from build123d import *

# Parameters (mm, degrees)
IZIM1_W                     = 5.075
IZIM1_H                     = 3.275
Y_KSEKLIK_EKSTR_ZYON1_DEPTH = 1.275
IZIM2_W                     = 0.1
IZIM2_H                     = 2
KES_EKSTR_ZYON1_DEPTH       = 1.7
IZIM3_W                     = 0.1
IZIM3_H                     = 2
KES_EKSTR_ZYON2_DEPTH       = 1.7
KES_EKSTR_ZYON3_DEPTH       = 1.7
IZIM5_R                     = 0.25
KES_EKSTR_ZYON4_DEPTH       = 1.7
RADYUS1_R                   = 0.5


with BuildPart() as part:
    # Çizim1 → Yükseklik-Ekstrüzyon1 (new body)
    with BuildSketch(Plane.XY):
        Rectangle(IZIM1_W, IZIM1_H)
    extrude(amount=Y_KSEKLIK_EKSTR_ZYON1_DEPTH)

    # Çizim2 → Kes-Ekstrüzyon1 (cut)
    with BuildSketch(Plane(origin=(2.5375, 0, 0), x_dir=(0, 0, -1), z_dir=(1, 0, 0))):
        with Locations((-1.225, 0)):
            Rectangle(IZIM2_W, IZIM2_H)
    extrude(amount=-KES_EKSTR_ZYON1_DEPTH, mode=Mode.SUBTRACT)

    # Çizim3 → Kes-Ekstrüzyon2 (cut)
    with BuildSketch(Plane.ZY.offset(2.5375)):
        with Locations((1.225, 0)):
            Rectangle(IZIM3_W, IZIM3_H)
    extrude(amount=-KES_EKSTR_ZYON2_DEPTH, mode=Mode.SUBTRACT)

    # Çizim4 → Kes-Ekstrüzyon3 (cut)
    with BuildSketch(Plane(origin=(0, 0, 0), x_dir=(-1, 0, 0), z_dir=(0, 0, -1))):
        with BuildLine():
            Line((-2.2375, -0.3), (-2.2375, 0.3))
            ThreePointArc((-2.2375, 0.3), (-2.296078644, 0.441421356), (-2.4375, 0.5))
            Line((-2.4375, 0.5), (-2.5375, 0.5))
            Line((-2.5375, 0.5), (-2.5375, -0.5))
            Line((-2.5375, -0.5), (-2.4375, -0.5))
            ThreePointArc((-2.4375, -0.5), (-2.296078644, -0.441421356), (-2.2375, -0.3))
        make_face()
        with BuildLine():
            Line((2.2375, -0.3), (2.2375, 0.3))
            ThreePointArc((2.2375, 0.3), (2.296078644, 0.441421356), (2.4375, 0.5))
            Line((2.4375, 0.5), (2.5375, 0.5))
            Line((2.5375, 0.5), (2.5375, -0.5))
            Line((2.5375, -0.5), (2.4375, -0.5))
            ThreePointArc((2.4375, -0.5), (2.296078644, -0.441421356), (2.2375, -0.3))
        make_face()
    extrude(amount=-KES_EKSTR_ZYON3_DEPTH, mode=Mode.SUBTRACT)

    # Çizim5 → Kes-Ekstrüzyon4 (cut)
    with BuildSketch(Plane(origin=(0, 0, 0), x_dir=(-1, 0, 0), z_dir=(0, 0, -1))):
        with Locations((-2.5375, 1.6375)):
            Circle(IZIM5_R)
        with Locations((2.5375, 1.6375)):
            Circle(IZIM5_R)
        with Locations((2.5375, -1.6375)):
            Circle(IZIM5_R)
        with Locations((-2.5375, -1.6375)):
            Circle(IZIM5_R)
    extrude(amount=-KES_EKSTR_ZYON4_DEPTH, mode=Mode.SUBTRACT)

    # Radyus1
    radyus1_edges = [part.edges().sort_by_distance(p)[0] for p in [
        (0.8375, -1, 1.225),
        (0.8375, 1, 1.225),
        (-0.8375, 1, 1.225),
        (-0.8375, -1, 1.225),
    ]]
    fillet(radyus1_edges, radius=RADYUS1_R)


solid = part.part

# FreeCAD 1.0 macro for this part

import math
import FreeCAD as App
import Part
import Sketcher


def edges_at(feature, points):
    """Names of the edges that pass closest to the given points."""
    edges = feature.Shape.Edges
    near = lambda p: min(range(len(edges)), key=lambda i: edges[i].distToShape(Part.Vertex(*p))[0])
    return sorted({f"Edge{near(p) + 1}" for p in points})

doc = App.newDocument("Part")
body = doc.addObject("PartDesign::Body", "Body")

# Sketch on XY plane
sketch1 = body.newObject("Sketcher::SketchObject", "Sketch")
sketch1.AttachmentSupport = (doc.getObject("XY_Plane"), [""])
sketch1.MapMode = "FlatFace"
sketch1.addGeometry(Part.LineSegment(App.Vector(-2.5, 1.6, 0), App.Vector(-2.5, -1.6, 0)), False)
sketch1.addGeometry(Part.LineSegment(App.Vector(-2.5, -1.6, 0), App.Vector(2.5, -1.6, 0)), False)
sketch1.addGeometry(Part.LineSegment(App.Vector(2.5, -1.6, 0), App.Vector(2.5, 1.6, 0)), False)
sketch1.addGeometry(Part.LineSegment(App.Vector(2.5, 1.6, 0), App.Vector(-2.5, 1.6, 0)), False)
sketch1.addConstraint(Sketcher.Constraint("Coincident", 0, 2, 1, 1))
sketch1.addConstraint(Sketcher.Constraint("Coincident", 1, 2, 2, 1))
sketch1.addConstraint(Sketcher.Constraint("Coincident", 2, 2, 3, 1))
sketch1.addConstraint(Sketcher.Constraint("Coincident", 3, 2, 0, 1))
sketch1.addConstraint(Sketcher.Constraint("Vertical", 0))
sketch1.addConstraint(Sketcher.Constraint("Horizontal", 1))
sketch1.addConstraint(Sketcher.Constraint("Vertical", 2))
sketch1.addConstraint(Sketcher.Constraint("Horizontal", 3))
sketch1.addConstraint(Sketcher.Constraint("Symmetric", 0, 2, 2, 2, -1, 1))
sketch1.addConstraint(Sketcher.Constraint("DistanceX", 1, 1, 1, 2, 5.075))
sketch1.addConstraint(Sketcher.Constraint("DistanceY", 0, 2, 0, 1, 3.275))
pad1 = body.newObject("PartDesign::Pad", "Pad")
pad1.Profile = sketch1
pad1.Length = 1.275

# Sketch on YZ plane
sketch2 = body.newObject("Sketcher::SketchObject", "Sketch001")
sketch2.AttachmentSupport = (doc.getObject("YZ_Plane"), [""])
sketch2.MapMode = "FlatFace"
sketch2.AttachmentOffset = App.Placement(App.Vector(0, 0, 2.5375), App.Rotation())
sketch2.addGeometry(Part.LineSegment(App.Vector(1, 1.27, 0), App.Vector(-1, 1.27, 0)), False)
sketch2.addGeometry(Part.LineSegment(App.Vector(-1, 1.27, 0), App.Vector(-1, 1.18, 0)), False)
sketch2.addGeometry(Part.LineSegment(App.Vector(-1, 1.18, 0), App.Vector(1, 1.18, 0)), False)
sketch2.addGeometry(Part.LineSegment(App.Vector(1, 1.18, 0), App.Vector(1, 1.27, 0)), False)
sketch2.addConstraint(Sketcher.Constraint("Coincident", 0, 2, 1, 1))
sketch2.addConstraint(Sketcher.Constraint("Coincident", 1, 2, 2, 1))
sketch2.addConstraint(Sketcher.Constraint("Coincident", 2, 2, 3, 1))
sketch2.addConstraint(Sketcher.Constraint("Coincident", 3, 2, 0, 1))
sketch2.addConstraint(Sketcher.Constraint("Horizontal", 0))
sketch2.addConstraint(Sketcher.Constraint("Vertical", 1))
sketch2.addConstraint(Sketcher.Constraint("Horizontal", 2))
sketch2.addConstraint(Sketcher.Constraint("Vertical", 3))
sketch2.addConstraint(Sketcher.Constraint("DistanceX", 0, 2, 0, 1, 2.0))
sketch2.addConstraint(Sketcher.Constraint("DistanceY", 1, 2, 1, 1, 0.1))
sketch2.addConstraint(Sketcher.Constraint("DistanceX", 0, 2, -1, 1, 1.0))
sketch2.addConstraint(Sketcher.Constraint("DistanceY", -1, 1, 0, 2, 1.275))
pocket1 = body.newObject("PartDesign::Pocket", "Pocket")
pocket1.Profile = sketch2
pocket1.Length = 1.7

# Sketch on YZ plane
sketch3 = body.newObject("Sketcher::SketchObject", "Sketch002")
sketch3.AttachmentSupport = (doc.getObject("YZ_Plane"), [""])
sketch3.MapMode = "FlatFace"
sketch3.AttachmentOffset = App.Placement(App.Vector(0, 0, -2.5375), App.Rotation())
sketch3.addGeometry(Part.LineSegment(App.Vector(1, 1.18, 0), App.Vector(-1, 1.18, 0)), False)
sketch3.addGeometry(Part.LineSegment(App.Vector(-1, 1.18, 0), App.Vector(-1, 1.27, 0)), False)
sketch3.addGeometry(Part.LineSegment(App.Vector(-1, 1.27, 0), App.Vector(1, 1.27, 0)), False)
sketch3.addGeometry(Part.LineSegment(App.Vector(1, 1.27, 0), App.Vector(1, 1.18, 0)), False)
sketch3.addConstraint(Sketcher.Constraint("Coincident", 0, 2, 1, 1))
sketch3.addConstraint(Sketcher.Constraint("Coincident", 1, 2, 2, 1))
sketch3.addConstraint(Sketcher.Constraint("Coincident", 2, 2, 3, 1))
sketch3.addConstraint(Sketcher.Constraint("Coincident", 3, 2, 0, 1))
sketch3.addConstraint(Sketcher.Constraint("Horizontal", 0))
sketch3.addConstraint(Sketcher.Constraint("Vertical", 1))
sketch3.addConstraint(Sketcher.Constraint("Horizontal", 2))
sketch3.addConstraint(Sketcher.Constraint("Vertical", 3))
sketch3.addConstraint(Sketcher.Constraint("DistanceX", 0, 2, 0, 1, 2.0))
sketch3.addConstraint(Sketcher.Constraint("DistanceY", 1, 1, 1, 2, 0.1))
sketch3.addConstraint(Sketcher.Constraint("DistanceX", 0, 2, -1, 1, 1.0))
sketch3.addConstraint(Sketcher.Constraint("DistanceY", -1, 1, 0, 2, 1.175))
pocket2 = body.newObject("PartDesign::Pocket", "Pocket001")
pocket2.Profile = sketch3
pocket2.Length = 1.7
pocket2.Reversed = True

# Sketch on XY plane
sketch4 = body.newObject("Sketcher::SketchObject", "Sketch003")
sketch4.AttachmentSupport = (doc.getObject("XY_Plane"), [""])
sketch4.MapMode = "FlatFace"
sketch4.addGeometry(Part.LineSegment(App.Vector(2.24, -0.3, 0), App.Vector(2.24, 0.3, 0)), False)
sketch4.addGeometry(Part.ArcOfCircle(Part.Circle(App.Vector(2.44, 0.3, 0), App.Vector(0, 0, 1), 0.2), math.radians(90), math.radians(180)), False)
sketch4.addGeometry(Part.LineSegment(App.Vector(2.44, 0.5, 0), App.Vector(2.54, 0.5, 0)), False)
sketch4.addGeometry(Part.LineSegment(App.Vector(2.54, 0.5, 0), App.Vector(2.54, -0.5, 0)), False)
sketch4.addGeometry(Part.LineSegment(App.Vector(2.54, -0.5, 0), App.Vector(2.44, -0.5, 0)), False)
sketch4.addGeometry(Part.ArcOfCircle(Part.Circle(App.Vector(2.44, -0.3, 0), App.Vector(0, 0, 1), 0.2), math.radians(-180), math.radians(-90)), False)
sketch4.addGeometry(Part.LineSegment(App.Vector(-2.24, 0.3, 0), App.Vector(-2.24, -0.3, 0)), False)
sketch4.addGeometry(Part.ArcOfCircle(Part.Circle(App.Vector(-2.44, -0.3, 0), App.Vector(0, 0, 1), 0.2), math.radians(-90), math.radians(0)), False)
sketch4.addGeometry(Part.LineSegment(App.Vector(-2.44, -0.5, 0), App.Vector(-2.54, -0.5, 0)), False)
sketch4.addGeometry(Part.LineSegment(App.Vector(-2.54, -0.5, 0), App.Vector(-2.54, 0.5, 0)), False)
sketch4.addGeometry(Part.LineSegment(App.Vector(-2.54, 0.5, 0), App.Vector(-2.44, 0.5, 0)), False)
sketch4.addGeometry(Part.ArcOfCircle(Part.Circle(App.Vector(-2.44, 0.3, 0), App.Vector(0, 0, 1), 0.2), math.radians(0), math.radians(90)), False)
sketch4.addConstraint(Sketcher.Constraint("Tangent", 0, 2, 1, 2))
sketch4.addConstraint(Sketcher.Constraint("Tangent", 1, 1, 2, 1))
sketch4.addConstraint(Sketcher.Constraint("Coincident", 2, 2, 3, 1))
sketch4.addConstraint(Sketcher.Constraint("Coincident", 3, 2, 4, 1))
sketch4.addConstraint(Sketcher.Constraint("Tangent", 4, 2, 5, 2))
sketch4.addConstraint(Sketcher.Constraint("Tangent", 5, 1, 0, 1))
sketch4.addConstraint(Sketcher.Constraint("Tangent", 6, 2, 7, 2))
sketch4.addConstraint(Sketcher.Constraint("Tangent", 7, 1, 8, 1))
sketch4.addConstraint(Sketcher.Constraint("Coincident", 8, 2, 9, 1))
sketch4.addConstraint(Sketcher.Constraint("Coincident", 9, 2, 10, 1))
sketch4.addConstraint(Sketcher.Constraint("Tangent", 10, 2, 11, 2))
sketch4.addConstraint(Sketcher.Constraint("Tangent", 11, 1, 6, 1))
sketch4.addConstraint(Sketcher.Constraint("Vertical", 0))
sketch4.addConstraint(Sketcher.Constraint("Horizontal", 2))
sketch4.addConstraint(Sketcher.Constraint("Vertical", 3))
sketch4.addConstraint(Sketcher.Constraint("Horizontal", 4))
sketch4.addConstraint(Sketcher.Constraint("Vertical", 6))
sketch4.addConstraint(Sketcher.Constraint("Horizontal", 8))
sketch4.addConstraint(Sketcher.Constraint("Vertical", 9))
sketch4.addConstraint(Sketcher.Constraint("Horizontal", 10))
sketch4.addConstraint(Sketcher.Constraint("Equal", 1, 5))
sketch4.addConstraint(Sketcher.Constraint("Equal", 5, 7))
sketch4.addConstraint(Sketcher.Constraint("Equal", 7, 11))
sketch4.addConstraint(Sketcher.Constraint("Symmetric", 1, 3, 7, 3, -1, 1))
sketch4.addConstraint(Sketcher.Constraint("Symmetric", 3, 2, 9, 2, -1, 1))
sketch4.addConstraint(Sketcher.Constraint("Horizontal", 5, 3, 7, 3))
sketch4.addConstraint(Sketcher.Constraint("Radius", 1, 0.2))
sketch4.addConstraint(Sketcher.Constraint("DistanceY", 3, 2, 3, 1, 1.0))
sketch4.addConstraint(Sketcher.Constraint("DistanceX", 2, 1, 2, 2, 0.1))
sketch4.addConstraint(Sketcher.Constraint("DistanceX", 7, 3, 5, 3, 4.875))
pocket3 = body.newObject("PartDesign::Pocket", "Pocket002")
pocket3.Profile = sketch4
pocket3.Length = 1.7
pocket3.Reversed = True

# Sketch on XY plane
sketch5 = body.newObject("Sketcher::SketchObject", "Sketch004")
sketch5.AttachmentSupport = (doc.getObject("XY_Plane"), [""])
sketch5.MapMode = "FlatFace"
sketch5.addGeometry(Part.Circle(App.Vector(2.54, 1.64, 0), App.Vector(0, 0, 1), 0.25), False)
sketch5.addGeometry(Part.Circle(App.Vector(-2.54, 1.64, 0), App.Vector(0, 0, 1), 0.25), False)
sketch5.addGeometry(Part.Circle(App.Vector(-2.54, -1.64, 0), App.Vector(0, 0, 1), 0.25), False)
sketch5.addGeometry(Part.Circle(App.Vector(2.54, -1.64, 0), App.Vector(0, 0, 1), 0.25), False)
sketch5.addConstraint(Sketcher.Constraint("Equal", 0, 1))
sketch5.addConstraint(Sketcher.Constraint("Equal", 1, 2))
sketch5.addConstraint(Sketcher.Constraint("Equal", 2, 3))
sketch5.addConstraint(Sketcher.Constraint("Symmetric", 0, 3, 2, 3, -1, 1))
sketch5.addConstraint(Sketcher.Constraint("Symmetric", 1, 3, 3, 3, -1, 1))
sketch5.addConstraint(Sketcher.Constraint("Symmetric", 0, 3, 1, 3, -2))
sketch5.addConstraint(Sketcher.Constraint("Diameter", 0, 0.5))
sketch5.addConstraint(Sketcher.Constraint("DistanceX", 1, 3, 0, 3, 5.075))
sketch5.addConstraint(Sketcher.Constraint("DistanceY", 2, 3, 1, 3, 3.275))
pocket4 = body.newObject("PartDesign::Pocket", "Pocket003")
pocket4.Profile = sketch5
pocket4.Length = 1.7
pocket4.Reversed = True
doc.recompute()

fillet = body.newObject("PartDesign::Fillet", "Fillet")
fillet.Base = (pocket4, edges_at(pocket4, [
    (0.838, -1, 1.225),
    (0.838, 1, 1.225),
    (-0.838, 1, 1.225),
    (-0.838, -1, 1.225),
]))
fillet.Radius = 0.5

doc.recompute()
